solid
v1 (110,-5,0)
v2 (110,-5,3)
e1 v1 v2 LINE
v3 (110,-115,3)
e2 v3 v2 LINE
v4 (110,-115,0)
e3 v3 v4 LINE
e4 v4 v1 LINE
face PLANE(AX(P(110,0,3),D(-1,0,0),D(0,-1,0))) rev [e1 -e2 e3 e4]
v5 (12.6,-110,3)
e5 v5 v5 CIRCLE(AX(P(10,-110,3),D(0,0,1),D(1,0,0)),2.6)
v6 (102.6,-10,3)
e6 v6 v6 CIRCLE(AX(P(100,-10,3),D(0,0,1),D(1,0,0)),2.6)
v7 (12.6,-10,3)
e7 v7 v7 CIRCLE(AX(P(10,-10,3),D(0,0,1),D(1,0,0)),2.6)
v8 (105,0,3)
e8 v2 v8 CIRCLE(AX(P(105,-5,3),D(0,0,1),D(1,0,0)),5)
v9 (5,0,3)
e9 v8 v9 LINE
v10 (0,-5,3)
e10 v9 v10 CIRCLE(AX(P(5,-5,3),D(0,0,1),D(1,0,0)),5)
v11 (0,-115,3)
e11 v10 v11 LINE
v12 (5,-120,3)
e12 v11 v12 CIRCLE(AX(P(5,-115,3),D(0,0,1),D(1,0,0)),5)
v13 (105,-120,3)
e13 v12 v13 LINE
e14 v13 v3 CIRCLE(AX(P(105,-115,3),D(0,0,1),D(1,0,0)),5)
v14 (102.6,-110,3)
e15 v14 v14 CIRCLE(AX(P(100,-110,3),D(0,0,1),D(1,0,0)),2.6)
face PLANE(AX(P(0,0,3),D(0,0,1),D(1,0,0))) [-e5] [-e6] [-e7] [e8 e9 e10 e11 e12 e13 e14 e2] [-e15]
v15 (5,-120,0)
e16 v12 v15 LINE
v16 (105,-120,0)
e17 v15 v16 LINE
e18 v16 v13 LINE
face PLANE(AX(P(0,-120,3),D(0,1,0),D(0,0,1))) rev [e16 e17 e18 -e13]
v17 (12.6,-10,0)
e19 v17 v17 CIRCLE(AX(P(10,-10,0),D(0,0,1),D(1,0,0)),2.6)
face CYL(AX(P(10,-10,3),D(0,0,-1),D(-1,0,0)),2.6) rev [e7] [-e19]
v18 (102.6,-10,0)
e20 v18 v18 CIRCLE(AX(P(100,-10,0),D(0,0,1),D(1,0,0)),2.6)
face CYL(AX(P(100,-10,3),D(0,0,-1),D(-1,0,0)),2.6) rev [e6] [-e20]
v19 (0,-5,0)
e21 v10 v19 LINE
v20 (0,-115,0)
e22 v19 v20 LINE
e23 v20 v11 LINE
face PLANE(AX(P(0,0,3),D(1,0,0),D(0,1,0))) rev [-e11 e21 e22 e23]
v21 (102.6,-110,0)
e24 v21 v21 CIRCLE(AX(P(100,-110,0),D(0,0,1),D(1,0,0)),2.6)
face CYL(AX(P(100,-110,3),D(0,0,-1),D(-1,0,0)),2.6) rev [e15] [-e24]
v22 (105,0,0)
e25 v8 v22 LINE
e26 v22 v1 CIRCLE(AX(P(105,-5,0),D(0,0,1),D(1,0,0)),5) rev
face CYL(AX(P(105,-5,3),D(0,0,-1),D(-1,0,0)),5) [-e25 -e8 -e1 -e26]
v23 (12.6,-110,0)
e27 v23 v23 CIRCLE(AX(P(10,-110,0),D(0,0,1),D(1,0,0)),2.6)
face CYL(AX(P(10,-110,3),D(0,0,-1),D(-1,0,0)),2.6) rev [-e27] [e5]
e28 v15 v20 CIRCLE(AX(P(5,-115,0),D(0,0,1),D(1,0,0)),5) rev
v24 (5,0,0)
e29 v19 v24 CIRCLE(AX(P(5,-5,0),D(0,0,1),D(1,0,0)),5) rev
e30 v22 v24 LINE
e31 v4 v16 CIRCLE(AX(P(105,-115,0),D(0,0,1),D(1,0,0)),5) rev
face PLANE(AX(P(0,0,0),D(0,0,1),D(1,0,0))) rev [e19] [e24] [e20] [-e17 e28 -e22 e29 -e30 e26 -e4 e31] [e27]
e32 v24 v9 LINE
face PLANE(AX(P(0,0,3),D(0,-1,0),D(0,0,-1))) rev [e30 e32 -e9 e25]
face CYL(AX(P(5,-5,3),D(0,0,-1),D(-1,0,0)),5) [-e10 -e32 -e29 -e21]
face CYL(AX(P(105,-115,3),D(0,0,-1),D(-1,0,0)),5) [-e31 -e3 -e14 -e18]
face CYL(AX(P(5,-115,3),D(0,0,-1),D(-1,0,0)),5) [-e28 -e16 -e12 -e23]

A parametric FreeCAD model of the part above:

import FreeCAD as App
import Part
import Sketcher

V = App.Vector


def edges_at(feature, points):
    """Names of the edges that pass closest to the given points."""
    edges = feature.Shape.Edges
    near = lambda p: min(range(len(edges)), key=lambda i: edges[i].distToShape(Part.Vertex(*p))[0])
    return sorted({f"Edge{near(p) + 1}" for p in points})

doc = App.newDocument("Part")
params = doc.addObject("Spreadsheet::Sheet", "Params")
for row, (alias, value) in enumerate([
    ("sketch1_diameter", "5.2 mm"),
    ("sketch1_width", "110 mm"),
    ("sketch1_height", "120 mm"),
    ("pad1_length", "3 mm"),
    ("fillet_radius", "5 mm"),
], start=1):
    params.set(f"A{row}", alias)
    params.set(f"B{row}", "=" + value)
    params.setAlias(f"B{row}", alias)

body = doc.addObject("PartDesign::Body", "Body")

# Sketch on XY plane
sketch1 = body.newObject("Sketcher::SketchObject", "Sketch")
sketch1.AttachmentSupport = (doc.getObject("XY_Plane"), [""])
sketch1.MapMode = "FlatFace"
sketch1.addGeometry(Part.LineSegment(V(0, 0, 0), V(0, -120, 0)), False)
sketch1.addGeometry(Part.LineSegment(V(0, -120, 0), V(110, -120, 0)), False)
sketch1.addGeometry(Part.LineSegment(V(110, -120, 0), V(110, 0, 0)), False)
sketch1.addGeometry(Part.LineSegment(V(110, 0, 0), V(0, 0, 0)), False)
sketch1.addGeometry(Part.Circle(V(10, -110, 0), V(0, 0, 1), 2.6), False)
sketch1.addGeometry(Part.Circle(V(100, -110, 0), V(0, 0, 1), 2.6), False)
sketch1.addGeometry(Part.Circle(V(10, -10, 0), V(0, 0, 1), 2.6), False)
sketch1.addGeometry(Part.Circle(V(100, -10, 0), V(0, 0, 1), 2.6), False)
sketch1.addConstraint(Sketcher.Constraint("Coincident", 0, 2, 1, 1))
sketch1.addConstraint(Sketcher.Constraint("Coincident", 1, 2, 2, 1))
sketch1.addConstraint(Sketcher.Constraint("Coincident", 2, 2, 3, 1))
sketch1.addConstraint(Sketcher.Constraint("Coincident", 3, 2, 0, 1))
sketch1.addConstraint(Sketcher.Constraint("Vertical", 0))
sketch1.addConstraint(Sketcher.Constraint("Horizontal", 1))
sketch1.addConstraint(Sketcher.Constraint("Vertical", 2))
sketch1.addConstraint(Sketcher.Constraint("Horizontal", 3))
sketch1.addConstraint(Sketcher.Constraint("Coincident", 3, 2, -1, 1))
sketch1.addConstraint(Sketcher.Constraint("Equal", 4, 5))
sketch1.addConstraint(Sketcher.Constraint("Equal", 5, 6))
sketch1.addConstraint(Sketcher.Constraint("Equal", 6, 7))
sketch1.addConstraint(Sketcher.Constraint("Horizontal", 4, 3, 5, 3))
sketch1.addConstraint(Sketcher.Constraint("Horizontal", 6, 3, 7, 3))
sketch1.addConstraint(Sketcher.Constraint("Vertical", 4, 3, 6, 3))
sketch1.addConstraint(Sketcher.Constraint("Vertical", 5, 3, 7, 3))
sketch1.addConstraint(Sketcher.Constraint("Diameter", 4, 5.2))
sketch1.addConstraint(Sketcher.Constraint("DistanceX", 1, 1, 1, 2, 110.0))
sketch1.addConstraint(Sketcher.Constraint("DistanceY", 0, 2, 0, 1, 120.0))
sketch1.addConstraint(Sketcher.Constraint("DistanceX", -1, 1, 4, 3, 10.0))
sketch1.addConstraint(Sketcher.Constraint("DistanceY", 4, 3, -1, 1, 110.0))
sketch1.addConstraint(Sketcher.Constraint("DistanceX", -1, 1, 5, 3, 100.0))
sketch1.addConstraint(Sketcher.Constraint("DistanceY", 6, 3, -1, 1, 10.0))
sketch1.setExpression("Constraints[16]", "Params.sketch1_diameter")
sketch1.setExpression("Constraints[17]", "Params.sketch1_width")
sketch1.setExpression("Constraints[18]", "Params.sketch1_height")
pad1 = body.newObject("PartDesign::Pad", "Pad")
pad1.Profile = sketch1
pad1.setExpression("Length", "Params.pad1_length")
doc.recompute()

fillet = body.newObject("PartDesign::Fillet", "Fillet")
fillet.Base = (pad1, edges_at(pad1, [
    (0, 0, 1.5),
    (110, 0, 1.5),
    (110, -120, 1.5),
    (0, -120, 1.5),
]))
fillet.setExpression("Radius", "Params.fillet_radius")

doc.recompute()
